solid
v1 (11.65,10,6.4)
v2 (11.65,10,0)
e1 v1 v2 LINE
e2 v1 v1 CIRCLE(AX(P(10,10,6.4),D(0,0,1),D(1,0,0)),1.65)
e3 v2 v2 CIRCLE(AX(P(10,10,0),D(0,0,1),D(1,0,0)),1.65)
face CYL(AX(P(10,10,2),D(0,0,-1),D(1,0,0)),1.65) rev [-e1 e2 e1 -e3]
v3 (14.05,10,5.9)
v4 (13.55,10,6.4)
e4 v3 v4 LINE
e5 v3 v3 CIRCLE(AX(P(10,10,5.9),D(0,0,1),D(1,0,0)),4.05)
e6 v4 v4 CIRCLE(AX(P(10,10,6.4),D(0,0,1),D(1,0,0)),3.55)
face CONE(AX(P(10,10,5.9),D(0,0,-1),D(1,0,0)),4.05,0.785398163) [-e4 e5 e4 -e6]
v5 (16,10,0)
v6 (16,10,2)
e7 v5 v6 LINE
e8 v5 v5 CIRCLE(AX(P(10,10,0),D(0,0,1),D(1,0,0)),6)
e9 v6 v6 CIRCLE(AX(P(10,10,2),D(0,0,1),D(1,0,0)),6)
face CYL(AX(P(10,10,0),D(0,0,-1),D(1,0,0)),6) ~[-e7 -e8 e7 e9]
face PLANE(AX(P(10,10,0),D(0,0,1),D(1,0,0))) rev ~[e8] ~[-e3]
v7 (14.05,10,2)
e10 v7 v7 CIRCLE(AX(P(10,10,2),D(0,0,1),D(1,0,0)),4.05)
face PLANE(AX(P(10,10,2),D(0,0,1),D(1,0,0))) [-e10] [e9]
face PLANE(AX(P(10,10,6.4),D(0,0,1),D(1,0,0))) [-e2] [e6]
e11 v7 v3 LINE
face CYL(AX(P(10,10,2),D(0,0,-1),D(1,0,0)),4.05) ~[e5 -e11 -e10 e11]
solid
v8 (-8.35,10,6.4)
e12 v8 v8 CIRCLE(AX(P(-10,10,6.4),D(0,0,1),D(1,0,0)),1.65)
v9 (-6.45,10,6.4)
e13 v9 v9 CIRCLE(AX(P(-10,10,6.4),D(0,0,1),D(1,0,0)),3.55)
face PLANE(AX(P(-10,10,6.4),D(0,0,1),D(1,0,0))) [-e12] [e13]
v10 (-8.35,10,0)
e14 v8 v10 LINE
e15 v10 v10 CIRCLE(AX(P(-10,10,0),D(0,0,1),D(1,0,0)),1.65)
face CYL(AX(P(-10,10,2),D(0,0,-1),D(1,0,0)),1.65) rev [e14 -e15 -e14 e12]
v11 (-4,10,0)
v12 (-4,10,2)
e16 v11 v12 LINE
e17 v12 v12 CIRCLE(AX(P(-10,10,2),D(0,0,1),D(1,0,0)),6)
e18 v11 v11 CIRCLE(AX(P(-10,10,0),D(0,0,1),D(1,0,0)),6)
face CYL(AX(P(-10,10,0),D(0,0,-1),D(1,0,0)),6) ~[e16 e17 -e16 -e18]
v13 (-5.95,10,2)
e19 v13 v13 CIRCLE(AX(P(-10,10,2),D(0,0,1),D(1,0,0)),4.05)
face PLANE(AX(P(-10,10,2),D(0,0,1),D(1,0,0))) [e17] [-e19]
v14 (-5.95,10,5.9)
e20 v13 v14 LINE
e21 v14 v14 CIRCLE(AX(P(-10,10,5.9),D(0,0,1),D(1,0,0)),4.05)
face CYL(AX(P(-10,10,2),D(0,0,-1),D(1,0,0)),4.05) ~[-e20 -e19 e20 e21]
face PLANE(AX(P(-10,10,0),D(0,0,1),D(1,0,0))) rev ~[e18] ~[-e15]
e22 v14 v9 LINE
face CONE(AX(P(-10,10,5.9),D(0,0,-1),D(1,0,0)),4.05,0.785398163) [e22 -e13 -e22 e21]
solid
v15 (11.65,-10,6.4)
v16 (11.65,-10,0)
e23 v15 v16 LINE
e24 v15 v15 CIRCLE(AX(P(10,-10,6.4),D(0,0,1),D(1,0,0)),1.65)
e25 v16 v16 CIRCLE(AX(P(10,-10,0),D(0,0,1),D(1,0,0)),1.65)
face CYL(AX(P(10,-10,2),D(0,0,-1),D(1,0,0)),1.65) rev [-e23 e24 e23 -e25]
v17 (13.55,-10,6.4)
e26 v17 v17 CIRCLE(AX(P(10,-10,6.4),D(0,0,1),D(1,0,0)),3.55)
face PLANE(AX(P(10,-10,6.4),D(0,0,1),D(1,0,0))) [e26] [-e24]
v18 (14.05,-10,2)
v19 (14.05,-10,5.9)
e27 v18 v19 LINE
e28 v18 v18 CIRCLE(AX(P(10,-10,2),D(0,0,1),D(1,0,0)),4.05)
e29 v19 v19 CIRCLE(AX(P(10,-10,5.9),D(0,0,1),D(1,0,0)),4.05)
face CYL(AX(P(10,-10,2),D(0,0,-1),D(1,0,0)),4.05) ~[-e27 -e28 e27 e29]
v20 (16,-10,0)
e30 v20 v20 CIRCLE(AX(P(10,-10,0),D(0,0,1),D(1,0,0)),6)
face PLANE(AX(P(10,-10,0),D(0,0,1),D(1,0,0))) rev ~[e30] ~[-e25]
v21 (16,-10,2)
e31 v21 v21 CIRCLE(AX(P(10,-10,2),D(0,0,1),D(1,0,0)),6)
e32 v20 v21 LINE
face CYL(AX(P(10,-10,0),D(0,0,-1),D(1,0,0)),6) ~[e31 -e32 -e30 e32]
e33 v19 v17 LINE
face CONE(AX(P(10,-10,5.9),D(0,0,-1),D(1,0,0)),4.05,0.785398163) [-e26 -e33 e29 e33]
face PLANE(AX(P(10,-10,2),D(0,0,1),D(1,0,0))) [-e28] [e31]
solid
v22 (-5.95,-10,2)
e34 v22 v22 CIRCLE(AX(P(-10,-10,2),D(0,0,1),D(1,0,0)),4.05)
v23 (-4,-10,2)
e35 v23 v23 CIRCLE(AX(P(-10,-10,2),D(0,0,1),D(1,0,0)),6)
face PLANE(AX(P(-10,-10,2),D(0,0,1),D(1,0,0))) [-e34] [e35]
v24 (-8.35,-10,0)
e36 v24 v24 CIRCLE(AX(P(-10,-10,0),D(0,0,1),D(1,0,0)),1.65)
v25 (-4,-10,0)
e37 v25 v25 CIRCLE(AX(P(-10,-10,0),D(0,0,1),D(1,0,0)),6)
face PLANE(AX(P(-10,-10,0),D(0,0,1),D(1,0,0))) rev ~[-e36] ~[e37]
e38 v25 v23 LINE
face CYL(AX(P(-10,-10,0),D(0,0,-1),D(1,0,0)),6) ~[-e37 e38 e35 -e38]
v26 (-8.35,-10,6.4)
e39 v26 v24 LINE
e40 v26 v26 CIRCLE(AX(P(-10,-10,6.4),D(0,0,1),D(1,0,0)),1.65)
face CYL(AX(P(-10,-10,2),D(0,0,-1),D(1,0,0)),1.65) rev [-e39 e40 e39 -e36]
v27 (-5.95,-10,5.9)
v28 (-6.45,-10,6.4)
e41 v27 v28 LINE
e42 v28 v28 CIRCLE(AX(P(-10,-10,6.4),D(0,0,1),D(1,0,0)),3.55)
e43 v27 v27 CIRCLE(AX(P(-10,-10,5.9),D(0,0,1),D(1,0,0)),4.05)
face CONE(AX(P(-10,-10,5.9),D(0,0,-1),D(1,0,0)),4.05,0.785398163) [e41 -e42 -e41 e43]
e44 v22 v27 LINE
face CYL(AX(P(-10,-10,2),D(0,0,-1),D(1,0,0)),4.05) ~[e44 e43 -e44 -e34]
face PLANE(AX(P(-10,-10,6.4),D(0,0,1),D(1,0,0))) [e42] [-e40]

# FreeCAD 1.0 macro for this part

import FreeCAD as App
import Part
import Sketcher
from FreeCAD import Vector


def edges_at(feature, points):
    """Names of the edges that pass closest to the given points."""
    edges = feature.Shape.Edges
    near = lambda p: min(range(len(edges)), key=lambda i: edges[i].distToShape(Part.Vertex(*p))[0])
    return sorted({f"Edge{near(p) + 1}" for p in points})

doc = App.newDocument("Part")
body = doc.addObject("PartDesign::Body", "Body")

# Sketch on XY plane
sketch1 = body.newObject("Sketcher::SketchObject", "Sketch")
sketch1.AttachmentSupport = (doc.getObject("XY_Plane"), [""])
sketch1.MapMode = "FlatFace"
sketch1.addGeometry([
    Part.Circle(Vector(-10, 10, 0), Vector(0, 0, 1), 6),
    Part.Circle(Vector(-10, 10, 0), Vector(0, 0, 1), 1.6),
], False)
sketch1.addConstraint([
    Sketcher.Constraint("Coincident", 1, 3, 0, 3),
    Sketcher.Constraint("Diameter", 0, 12.0),
    Sketcher.Constraint("Diameter", 1, 3.3),
    Sketcher.Constraint("DistanceX", 0, 3, -1, 1, 10.0),
    Sketcher.Constraint("DistanceY", -1, 1, 0, 3, 10.0),
])
pad1 = body.newObject("PartDesign::Pad", "Pad")
pad1.Profile = sketch1
pad1.Length = 2

# Sketch on XY plane
sketch2 = body.newObject("Sketcher::SketchObject", "Sketch001")
sketch2.AttachmentSupport = (doc.getObject("XY_Plane"), [""])
sketch2.MapMode = "FlatFace"
sketch2.AttachmentOffset = App.Placement(Vector(0, 0, 2), App.Rotation())
sketch2.addGeometry([
    Part.Circle(Vector(-10, 10, 0), Vector(0, 0, 1), 4),
    Part.Circle(Vector(-10, 10, 0), Vector(0, 0, 1), 1.6),
], False)
sketch2.addConstraint([
    Sketcher.Constraint("Coincident", 1, 3, 0, 3),
    Sketcher.Constraint("Diameter", 0, 8.1),
    Sketcher.Constraint("Diameter", 1, 3.3),
    Sketcher.Constraint("DistanceX", 0, 3, -1, 1, 10.0),
    Sketcher.Constraint("DistanceY", -1, 1, 0, 3, 10.0),
])
pad2 = body.newObject("PartDesign::Pad", "Pad001")
pad2.Profile = sketch2
pad2.Length = 4.4
doc.recompute()

chamfer = body.newObject("PartDesign::Chamfer", "Chamfer")
chamfer.Base = (pad2, edges_at(pad2, [(-14.05, 10, 6.4)]))
chamfer.Size = 0.5
body2 = doc.addObject("PartDesign::Body", "Body001")

# Sketch on XY plane
sketch3 = body2.newObject("Sketcher::SketchObject", "Sketch002")
sketch3.AttachmentSupport = (doc.getObject("XY_Plane001"), [""])
sketch3.MapMode = "FlatFace"
sketch3.addGeometry([
    Part.Circle(Vector(10, 10, 0), Vector(0, 0, 1), 6),
    Part.Circle(Vector(10, 10, 0), Vector(0, 0, 1), 1.6),
], False)
sketch3.addConstraint([
    Sketcher.Constraint("Coincident", 1, 3, 0, 3),
    Sketcher.Constraint("Diameter", 0, 12.0),
    Sketcher.Constraint("Diameter", 1, 3.3),
    Sketcher.Constraint("DistanceX", -1, 1, 0, 3, 10.0),
    Sketcher.Constraint("DistanceY", -1, 1, 0, 3, 10.0),
])
pad3 = body2.newObject("PartDesign::Pad", "Pad002")
pad3.Profile = sketch3
pad3.Length = 2

# Sketch on XY plane
sketch4 = body2.newObject("Sketcher::SketchObject", "Sketch003")
sketch4.AttachmentSupport = (doc.getObject("XY_Plane001"), [""])
sketch4.MapMode = "FlatFace"
sketch4.AttachmentOffset = App.Placement(Vector(0, 0, 2), App.Rotation())
sketch4.addGeometry([
    Part.Circle(Vector(10, 10, 0), Vector(0, 0, 1), 4),
    Part.Circle(Vector(10, 10, 0), Vector(0, 0, 1), 1.6),
], False)
sketch4.addConstraint([
    Sketcher.Constraint("Coincident", 1, 3, 0, 3),
    Sketcher.Constraint("Diameter", 0, 8.1),
    Sketcher.Constraint("Diameter", 1, 3.3),
    Sketcher.Constraint("DistanceX", -1, 1, 0, 3, 10.0),
    Sketcher.Constraint("DistanceY", -1, 1, 0, 3, 10.0),
])
pad4 = body2.newObject("PartDesign::Pad", "Pad003")
pad4.Profile = sketch4
pad4.Length = 4.4
doc.recompute()

chamfer2 = body2.newObject("PartDesign::Chamfer", "Chamfer001")
chamfer2.Base = (pad4, edges_at(pad4, [(5.95, 10, 6.4)]))
chamfer2.Size = 0.5
body3 = doc.addObject("PartDesign::Body", "Body002")

# Sketch on XY plane
sketch5 = body3.newObject("Sketcher::SketchObject", "Sketch004")
sketch5.AttachmentSupport = (doc.getObject("XY_Plane002"), [""])
sketch5.MapMode = "FlatFace"
sketch5.addGeometry([
    Part.Circle(Vector(10, -10, 0), Vector(0, 0, 1), 6),
    Part.Circle(Vector(10, -10, 0), Vector(0, 0, 1), 1.6),
], False)
sketch5.addConstraint([
    Sketcher.Constraint("Coincident", 1, 3, 0, 3),
    Sketcher.Constraint("Diameter", 0, 12.0),
    Sketcher.Constraint("Diameter", 1, 3.3),
    Sketcher.Constraint("DistanceX", -1, 1, 0, 3, 10.0),
    Sketcher.Constraint("DistanceY", 0, 3, -1, 1, 10.0),
])
pad5 = body3.newObject("PartDesign::Pad", "Pad004")
pad5.Profile = sketch5
pad5.Length = 2

# Sketch on XY plane
sketch6 = body3.newObject("Sketcher::SketchObject", "Sketch005")
sketch6.AttachmentSupport = (doc.getObject("XY_Plane002"), [""])
sketch6.MapMode = "FlatFace"
sketch6.AttachmentOffset = App.Placement(Vector(0, 0, 2), App.Rotation())
sketch6.addGeometry([
    Part.Circle(Vector(10, -10, 0), Vector(0, 0, 1), 4),
    Part.Circle(Vector(10, -10, 0), Vector(0, 0, 1), 1.6),
], False)
sketch6.addConstraint([
    Sketcher.Constraint("Coincident", 1, 3, 0, 3),
    Sketcher.Constraint("Diameter", 0, 8.1),
    Sketcher.Constraint("Diameter", 1, 3.3),
    Sketcher.Constraint("DistanceX", -1, 1, 0, 3, 10.0),
    Sketcher.Constraint("DistanceY", 0, 3, -1, 1, 10.0),
])
pad6 = body3.newObject("PartDesign::Pad", "Pad005")
pad6.Profile = sketch6
pad6.Length = 4.4
doc.recompute()

chamfer3 = body3.newObject("PartDesign::Chamfer", "Chamfer002")
chamfer3.Base = (pad6, edges_at(pad6, [(5.95, -10, 6.4)]))
chamfer3.Size = 0.5
body4 = doc.addObject("PartDesign::Body", "Body003")

# Sketch on XY plane
sketch7 = body4.newObject("Sketcher::SketchObject", "Sketch006")
sketch7.AttachmentSupport = (doc.getObject("XY_Plane003"), [""])
sketch7.MapMode = "FlatFace"
sketch7.addGeometry([
    Part.Circle(Vector(-10, -10, 0), Vector(0, 0, 1), 6),
    Part.Circle(Vector(-10, -10, 0), Vector(0, 0, 1), 1.6),
], False)
sketch7.addConstraint([
    Sketcher.Constraint("Coincident", 1, 3, 0, 3),
    Sketcher.Constraint("Diameter", 0, 12.0),
    Sketcher.Constraint("Diameter", 1, 3.3),
    Sketcher.Constraint("DistanceX", 0, 3, -1, 1, 10.0),
    Sketcher.Constraint("DistanceY", 0, 3, -1, 1, 10.0),
])
pad7 = body4.newObject("PartDesign::Pad", "Pad006")
pad7.Profile = sketch7
pad7.Length = 2

# Sketch on XY plane
sketch8 = body4.newObject("Sketcher::SketchObject", "Sketch007")
sketch8.AttachmentSupport = (doc.getObject("XY_Plane003"), [""])
sketch8.MapMode = "FlatFace"
sketch8.AttachmentOffset = App.Placement(Vector(0, 0, 2), App.Rotation())
sketch8.addGeometry([
    Part.Circle(Vector(-10, -10, 0), Vector(0, 0, 1), 4),
    Part.Circle(Vector(-10, -10, 0), Vector(0, 0, 1), 1.6),
], False)
sketch8.addConstraint([
    Sketcher.Constraint("Coincident", 1, 3, 0, 3),
    Sketcher.Constraint("Diameter", 0, 8.1),
    Sketcher.Constraint("Diameter", 1, 3.3),
    Sketcher.Constraint("DistanceX", 0, 3, -1, 1, 10.0),
    Sketcher.Constraint("DistanceY", 0, 3, -1, 1, 10.0),
])
pad8 = body4.newObject("PartDesign::Pad", "Pad007")
pad8.Profile = sketch8
pad8.Length = 4.4
doc.recompute()

chamfer4 = body4.newObject("PartDesign::Chamfer", "Chamfer003")
chamfer4.Base = (pad8, edges_at(pad8, [(-14.05, -10, 6.4)]))
chamfer4.Size = 0.5

doc.recompute()
